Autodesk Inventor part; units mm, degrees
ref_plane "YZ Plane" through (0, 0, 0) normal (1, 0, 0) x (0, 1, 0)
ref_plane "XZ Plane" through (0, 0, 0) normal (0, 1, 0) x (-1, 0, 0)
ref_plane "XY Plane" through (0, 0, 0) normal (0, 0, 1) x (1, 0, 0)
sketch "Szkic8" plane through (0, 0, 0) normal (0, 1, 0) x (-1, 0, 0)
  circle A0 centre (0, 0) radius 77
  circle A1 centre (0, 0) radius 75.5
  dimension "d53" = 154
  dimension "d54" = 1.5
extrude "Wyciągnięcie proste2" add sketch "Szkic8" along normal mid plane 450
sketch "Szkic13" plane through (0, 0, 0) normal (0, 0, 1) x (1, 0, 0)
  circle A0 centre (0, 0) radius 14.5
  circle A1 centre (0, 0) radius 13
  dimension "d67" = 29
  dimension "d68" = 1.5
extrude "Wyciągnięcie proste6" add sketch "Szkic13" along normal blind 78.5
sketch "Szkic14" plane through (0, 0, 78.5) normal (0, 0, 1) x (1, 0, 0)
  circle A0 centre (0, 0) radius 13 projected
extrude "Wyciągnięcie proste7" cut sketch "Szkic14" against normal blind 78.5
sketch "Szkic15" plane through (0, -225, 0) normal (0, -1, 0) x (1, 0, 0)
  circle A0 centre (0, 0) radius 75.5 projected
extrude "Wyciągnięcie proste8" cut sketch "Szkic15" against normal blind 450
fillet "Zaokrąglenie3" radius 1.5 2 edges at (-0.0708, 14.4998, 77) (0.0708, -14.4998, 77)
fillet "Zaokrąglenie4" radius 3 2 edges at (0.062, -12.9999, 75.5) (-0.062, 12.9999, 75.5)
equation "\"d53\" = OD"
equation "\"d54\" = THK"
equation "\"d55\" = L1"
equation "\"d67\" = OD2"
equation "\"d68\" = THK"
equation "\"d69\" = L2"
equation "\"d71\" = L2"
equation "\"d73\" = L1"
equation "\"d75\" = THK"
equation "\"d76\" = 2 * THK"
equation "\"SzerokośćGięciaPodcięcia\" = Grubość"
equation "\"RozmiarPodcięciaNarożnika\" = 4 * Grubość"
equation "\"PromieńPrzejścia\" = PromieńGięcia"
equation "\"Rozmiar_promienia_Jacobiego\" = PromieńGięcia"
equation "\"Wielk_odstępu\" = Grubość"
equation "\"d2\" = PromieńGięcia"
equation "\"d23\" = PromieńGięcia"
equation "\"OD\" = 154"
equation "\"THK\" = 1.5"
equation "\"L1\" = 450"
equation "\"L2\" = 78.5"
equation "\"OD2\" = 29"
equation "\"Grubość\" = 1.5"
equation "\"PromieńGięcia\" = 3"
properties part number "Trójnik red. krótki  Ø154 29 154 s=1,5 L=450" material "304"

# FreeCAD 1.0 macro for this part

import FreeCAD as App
import Part
import Sketcher
from FreeCAD import Vector
Q = App.Units.Quantity


def edges_at(feature, points):
    """Names of the edges that pass closest to the given points."""
    edges = feature.Shape.Edges
    near = lambda p: min(range(len(edges)), key=lambda i: edges[i].distToShape(Part.Vertex(*p))[0])
    return sorted({f"Edge{near(p) + 1}" for p in points})

doc = App.newDocument("Part")
body = doc.addObject("PartDesign::Body", "Body")

# Sketch on XZ plane
sketch1 = body.newObject("Sketcher::SketchObject", "Sketch")
sketch1.AttachmentSupport = (doc.getObject("XZ_Plane"), [""])
sketch1.MapMode = "FlatFace"
sketch1.addGeometry(Part.Circle(Vector(0, 0, 0), Vector(0, 0, 1), 77), False)
sketch1.addGeometry(Part.Circle(Vector(0, 0, 0), Vector(0, 0, 1), 76), False)
sketch1.addConstraint(Sketcher.Constraint("Coincident", 0, 3, -1, 1))
sketch1.addConstraint(Sketcher.Constraint("Coincident", 1, 3, -1, 1))
sketch1.addConstraint(Sketcher.Constraint("Diameter", 0, Q("154 mm")))
sketch1.addConstraint(Sketcher.Constraint("Diameter", 1, Q("151 mm")))
pad1 = body.newObject("PartDesign::Pad", "Pad")
pad1.Profile = sketch1
pad1.Length = 450
pad1.Midplane = True

# Sketch on XY plane
sketch2 = body.newObject("Sketcher::SketchObject", "Sketch001")
sketch2.AttachmentSupport = (doc.getObject("XY_Plane"), [""])
sketch2.MapMode = "FlatFace"
sketch2.addGeometry(Part.Circle(Vector(0, 0, 0), Vector(0, 0, 1), 14), False)
sketch2.addGeometry(Part.Circle(Vector(0, 0, 0), Vector(0, 0, 1), 13), False)
sketch2.addConstraint(Sketcher.Constraint("Coincident", 0, 3, -1, 1))
sketch2.addConstraint(Sketcher.Constraint("Coincident", 1, 3, -1, 1))
sketch2.addConstraint(Sketcher.Constraint("Diameter", 0, Q("29 mm")))
sketch2.addConstraint(Sketcher.Constraint("Diameter", 1, Q("26 mm")))
pad2 = body.newObject("PartDesign::Pad", "Pad001")
pad2.Profile = sketch2
pad2.Length = 78.5

# Sketch on XY plane
sketch3 = body.newObject("Sketcher::SketchObject", "Sketch002")
sketch3.AttachmentSupport = (doc.getObject("XY_Plane"), [""])
sketch3.MapMode = "FlatFace"
sketch3.AttachmentOffset = App.Placement(Vector(0, 0, 78.5), App.Rotation())
sketch3.addGeometry(Part.Circle(Vector(0, 0, 0), Vector(0, 0, 1), 13), False)
sketch3.addConstraint(Sketcher.Constraint("Coincident", 0, 3, -1, 1))
sketch3.addConstraint(Sketcher.Constraint("Diameter", 0, Q("26 mm")))
pocket1 = body.newObject("PartDesign::Pocket", "Pocket")
pocket1.Profile = sketch3
pocket1.Length = 78.5

# Sketch on XZ plane
sketch4 = body.newObject("Sketcher::SketchObject", "Sketch003")
sketch4.AttachmentSupport = (doc.getObject("XZ_Plane"), [""])
sketch4.MapMode = "FlatFace"
sketch4.AttachmentOffset = App.Placement(Vector(0, 0, 225), App.Rotation())
sketch4.addGeometry(Part.Circle(Vector(0, 0, 0), Vector(0, 0, 1), 76), False)
sketch4.addConstraint(Sketcher.Constraint("Coincident", 0, 3, -1, 1))
sketch4.addConstraint(Sketcher.Constraint("Diameter", 0, Q("151 mm")))
pocket2 = body.newObject("PartDesign::Pocket", "Pocket001")
pocket2.Profile = sketch4
pocket2.Length = 450
doc.recompute()

fillet = body.newObject("PartDesign::Fillet", "Fillet")
fillet.Base = (pocket2, edges_at(pocket2, [(-0.071, 14.5, 77), (0.071, -14.5, 77)]))
fillet.Radius = 1.5
doc.recompute()

fillet2 = body.newObject("PartDesign::Fillet", "Fillet001")
fillet2.Base = (fillet, edges_at(fillet, [(0.062, -13, 75.5), (-0.062, 13, 75.5)]))
fillet2.Radius = 3

doc.recompute()
